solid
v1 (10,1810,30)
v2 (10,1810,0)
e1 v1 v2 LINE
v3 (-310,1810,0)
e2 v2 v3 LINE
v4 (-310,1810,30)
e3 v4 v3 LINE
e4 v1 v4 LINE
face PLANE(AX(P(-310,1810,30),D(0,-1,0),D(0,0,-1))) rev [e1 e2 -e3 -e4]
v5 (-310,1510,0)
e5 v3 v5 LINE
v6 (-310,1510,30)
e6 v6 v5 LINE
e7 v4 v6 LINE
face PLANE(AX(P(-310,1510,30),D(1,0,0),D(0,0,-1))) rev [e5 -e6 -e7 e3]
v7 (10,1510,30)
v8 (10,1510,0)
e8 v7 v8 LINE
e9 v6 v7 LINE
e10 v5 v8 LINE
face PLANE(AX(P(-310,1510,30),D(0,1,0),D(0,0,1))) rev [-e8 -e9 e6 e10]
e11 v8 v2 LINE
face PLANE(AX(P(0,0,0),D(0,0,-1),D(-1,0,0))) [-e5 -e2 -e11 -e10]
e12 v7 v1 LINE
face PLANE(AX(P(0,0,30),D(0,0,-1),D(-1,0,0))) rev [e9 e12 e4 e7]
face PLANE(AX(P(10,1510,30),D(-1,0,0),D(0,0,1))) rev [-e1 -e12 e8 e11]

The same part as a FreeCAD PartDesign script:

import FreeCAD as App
import Part
import Sketcher

doc = App.newDocument("Part")
params = doc.addObject("Spreadsheet::Sheet", "Params")
for row, (alias, value) in enumerate([
    ("sketch1_width", "320 mm"),
    ("sketch1_height", "300 mm"),
    ("pad1_length", "30 mm"),
], start=1):
    params.set(f"A{row}", alias)
    params.set(f"B{row}", "=" + value)
    params.setAlias(f"B{row}", alias)

body = doc.addObject("PartDesign::Body", "Body")

sketch1 = body.newObject("Sketcher::SketchObject", "Sketch")
sketch1.AttachmentSupport = (doc.getObject("XY_Plane"), [""])
sketch1.MapMode = "FlatFace"
sketch1.addGeometry([
    Part.LineSegment(App.Vector(-310, 1810, 0), App.Vector(-310, 1510, 0)),
    Part.LineSegment(App.Vector(-310, 1510, 0), App.Vector(10, 1510, 0)),
    Part.LineSegment(App.Vector(10, 1510, 0), App.Vector(10, 1810, 0)),
    Part.LineSegment(App.Vector(10, 1810, 0), App.Vector(-310, 1810, 0)),
], False)
sketch1.addConstraint([
    Sketcher.Constraint("Coincident", 0, 2, 1, 1),
    Sketcher.Constraint("Coincident", 1, 2, 2, 1),
    Sketcher.Constraint("Coincident", 2, 2, 3, 1),
    Sketcher.Constraint("Coincident", 3, 2, 0, 1),
    Sketcher.Constraint("Vertical", 0),
    Sketcher.Constraint("Horizontal", 1),
    Sketcher.Constraint("Vertical", 2),
    Sketcher.Constraint("Horizontal", 3),
    Sketcher.Constraint("DistanceX", 1, 1, 1, 2, 320.0),
    Sketcher.Constraint("DistanceY", 0, 2, 0, 1, 300.0),
    Sketcher.Constraint("DistanceX", 0, 2, -1, 1, 310.0),
    Sketcher.Constraint("DistanceY", -1, 1, 0, 2, 1510.0),
])
sketch1.setExpression("Constraints[8]", "Params.sketch1_width")
sketch1.setExpression("Constraints[9]", "Params.sketch1_height")
pad1 = body.newObject("PartDesign::Pad", "Pad")
pad1.Profile = sketch1
pad1.setExpression("Length", "Params.pad1_length")

doc.recompute()
